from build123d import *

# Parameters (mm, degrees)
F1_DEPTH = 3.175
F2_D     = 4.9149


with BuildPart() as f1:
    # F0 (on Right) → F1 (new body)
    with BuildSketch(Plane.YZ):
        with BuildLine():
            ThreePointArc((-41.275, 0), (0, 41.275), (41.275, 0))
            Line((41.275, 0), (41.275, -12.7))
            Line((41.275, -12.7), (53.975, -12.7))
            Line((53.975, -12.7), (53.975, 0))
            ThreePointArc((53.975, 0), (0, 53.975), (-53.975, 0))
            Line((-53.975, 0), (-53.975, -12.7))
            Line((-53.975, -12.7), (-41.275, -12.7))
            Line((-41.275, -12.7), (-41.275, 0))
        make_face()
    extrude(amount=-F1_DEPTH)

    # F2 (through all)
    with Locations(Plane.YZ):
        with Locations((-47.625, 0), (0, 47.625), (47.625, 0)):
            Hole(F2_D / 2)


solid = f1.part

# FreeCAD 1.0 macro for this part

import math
import FreeCAD as App
import Part
import Sketcher
from FreeCAD import Vector
Q = App.Units.Quantity

doc = App.newDocument("Part")
body = doc.addObject("PartDesign::Body", "Body")

# Sketch on YZ plane
sketch1 = body.newObject("Sketcher::SketchObject", "Sketch")
sketch1.AttachmentSupport = (doc.getObject("YZ_Plane"), [""])
sketch1.MapMode = "FlatFace"
sketch1.addGeometry([
    Part.ArcOfCircle(Part.Circle(Vector(0, 0, 0), Vector(0, 0, 1), 41.275), math.radians(0), math.radians(180)),  # 0
    Part.LineSegment(Vector(41.275, 0, 0), Vector(41.275, -12.7, 0)),  # 1
    Part.LineSegment(Vector(41.275, -12.7, 0), Vector(53.975, -12.7, 0)),  # 2
    Part.LineSegment(Vector(53.975, -12.7, 0), Vector(53.975, 0, 0)),  # 3
    Part.ArcOfCircle(Part.Circle(Vector(0, 0, 0), Vector(0, 0, 1), 53.975), math.radians(0), math.radians(180)),  # 4
    Part.LineSegment(Vector(-53.975, 0, 0), Vector(-53.975, -12.7, 0)),  # 5
    Part.LineSegment(Vector(-53.975, -12.7, 0), Vector(-41.275, -12.7, 0)),  # 6
    Part.LineSegment(Vector(-41.275, -12.7, 0), Vector(-41.275, 0, 0)),  # 7
], False)
sketch1.addConstraint([
    Sketcher.Constraint("Tangent", 0, 1, 1, 1),
    Sketcher.Constraint("Coincident", 1, 2, 2, 1),
    Sketcher.Constraint("Coincident", 2, 2, 3, 1),
    Sketcher.Constraint("Tangent", 3, 2, 4, 1),
    Sketcher.Constraint("Tangent", 4, 2, 5, 1),
    Sketcher.Constraint("Coincident", 5, 2, 6, 1),
    Sketcher.Constraint("Coincident", 6, 2, 7, 1),
    Sketcher.Constraint("Tangent", 7, 2, 0, 2),
    Sketcher.Constraint("Vertical", 1),
    Sketcher.Constraint("Horizontal", 2),
    Sketcher.Constraint("Vertical", 3),
    Sketcher.Constraint("Vertical", 5),
    Sketcher.Constraint("Horizontal", 6),
    Sketcher.Constraint("Vertical", 7),
    Sketcher.Constraint("Coincident", 0, 3, -1, 1),
    Sketcher.Constraint("Coincident", 4, 3, -1, 1),
    Sketcher.Constraint("Horizontal", 2, 2, 5, 2),
    Sketcher.Constraint("Equal", 6, 1),
    Sketcher.Constraint("DistanceX", 2, 1, 2, 2, Q("0.5 in")),
    Sketcher.Constraint("Radius", 0, Q("1.625 in")),
])
pad1 = body.newObject("PartDesign::Pad", "Pad")
pad1.Profile = sketch1
pad1.Length = Q("0.125 in")
pad1.Reversed = True

# Sketch on YZ plane
sketch2 = body.newObject("Sketcher::SketchObject", "Sketch001")
sketch2.AttachmentSupport = (doc.getObject("YZ_Plane"), [""])
sketch2.MapMode = "FlatFace"
sketch2.addGeometry([
    Part.Circle(Vector(-47.625, 0, 0), Vector(0, 0, 1), 2.45745),
    Part.Circle(Vector(0, 47.625, 0), Vector(0, 0, 1), 2.45745),
    Part.Circle(Vector(47.625, 0, 0), Vector(0, 0, 1), 2.45745),
], False)
sketch2.addConstraint([
    Sketcher.Constraint("Equal", 0, 1),
    Sketcher.Constraint("Equal", 1, 2),
    Sketcher.Constraint("Symmetric", 0, 3, 2, 3, -1, 1),
    Sketcher.Constraint("PointOnObject", 0, 3, -1),
    Sketcher.Constraint("PointOnObject", 1, 3, -2),
    Sketcher.Constraint("Diameter", 0, Q("0.1935 in")),
    Sketcher.Constraint("DistanceX", 0, 3, 2, 3, Q("3.75 in")),
    Sketcher.Constraint("DistanceY", -1, 1, 1, 3, Q("1.875 in")),
])
doc.recompute()
hole = body.newObject("PartDesign::Hole", "Hole")
hole.Profile = sketch2
hole.ThreadType = "None"
hole.Diameter = Q("0.1935 in")
hole.DepthType = "ThroughAll"

doc.recompute()
